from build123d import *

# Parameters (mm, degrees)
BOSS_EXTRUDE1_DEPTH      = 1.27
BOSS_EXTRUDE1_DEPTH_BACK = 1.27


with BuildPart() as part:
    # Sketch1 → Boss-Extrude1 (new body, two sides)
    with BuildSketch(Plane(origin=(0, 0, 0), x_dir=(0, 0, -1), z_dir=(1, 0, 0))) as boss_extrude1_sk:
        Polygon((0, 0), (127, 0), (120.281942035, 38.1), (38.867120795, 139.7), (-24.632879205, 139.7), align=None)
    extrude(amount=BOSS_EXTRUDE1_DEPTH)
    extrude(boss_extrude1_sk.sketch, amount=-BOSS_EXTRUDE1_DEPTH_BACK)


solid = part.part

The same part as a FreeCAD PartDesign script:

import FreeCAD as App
import Part
import Sketcher

V = App.Vector
Q = App.Units.Quantity

doc = App.newDocument("Part")
body = doc.addObject("PartDesign::Body", "Body")

# Sketch on YZ plane
sketch1 = body.newObject("Sketcher::SketchObject", "Sketch")
sketch1.AttachmentSupport = (doc.getObject("YZ_Plane"), [""])
sketch1.MapMode = "FlatFace"
sketch1.addGeometry([
    Part.LineSegment(V(0, 0, 0), V(0, -127, 0)),  # 0
    Part.LineSegment(V(0, -127, 0), V(38, -120, 0)),  # 1
    Part.LineSegment(V(38, -120, 0), V(140, -39, 0)),  # 2
    Part.LineSegment(V(140, -39, 0), V(140, 25, 0)),  # 3
    Part.LineSegment(V(140, 25, 0), V(0, 0, 0)),  # 4
], False)
sketch1.addConstraint([
    Sketcher.Constraint("Coincident", 0, 2, 1, 1),
    Sketcher.Constraint("Coincident", 1, 2, 2, 1),
    Sketcher.Constraint("Coincident", 2, 2, 3, 1),
    Sketcher.Constraint("Coincident", 3, 2, 4, 1),
    Sketcher.Constraint("Coincident", 4, 2, 0, 1),
    Sketcher.Constraint("Vertical", 0),
    Sketcher.Constraint("Vertical", 3),
    Sketcher.Constraint("Coincident", 4, 2, -1, 1),
    Sketcher.Constraint("Parallel", 1, 4),
    Sketcher.Constraint("DistanceY", 0, 2, 0, 1, Q("5 in")),
    Sketcher.Constraint("DistanceY", 3, 1, 3, 2, Q("2.5 in")),
    Sketcher.Constraint("Angle", 1, Q("10 deg")),
    Sketcher.Constraint("DistanceX", 1, 2, 2, 2, Q("4 in")),
    Sketcher.Constraint("DistanceX", -1, 1, 1, 2, Q("1.5 in")),
])
pad1 = body.newObject("PartDesign::Pad", "Pad")
pad1.Profile = sketch1
pad1.Type = "TwoLengths"
pad1.Length = Q("0.05 in")
pad1.Length2 = Q("0.05 in")

doc.recompute()
